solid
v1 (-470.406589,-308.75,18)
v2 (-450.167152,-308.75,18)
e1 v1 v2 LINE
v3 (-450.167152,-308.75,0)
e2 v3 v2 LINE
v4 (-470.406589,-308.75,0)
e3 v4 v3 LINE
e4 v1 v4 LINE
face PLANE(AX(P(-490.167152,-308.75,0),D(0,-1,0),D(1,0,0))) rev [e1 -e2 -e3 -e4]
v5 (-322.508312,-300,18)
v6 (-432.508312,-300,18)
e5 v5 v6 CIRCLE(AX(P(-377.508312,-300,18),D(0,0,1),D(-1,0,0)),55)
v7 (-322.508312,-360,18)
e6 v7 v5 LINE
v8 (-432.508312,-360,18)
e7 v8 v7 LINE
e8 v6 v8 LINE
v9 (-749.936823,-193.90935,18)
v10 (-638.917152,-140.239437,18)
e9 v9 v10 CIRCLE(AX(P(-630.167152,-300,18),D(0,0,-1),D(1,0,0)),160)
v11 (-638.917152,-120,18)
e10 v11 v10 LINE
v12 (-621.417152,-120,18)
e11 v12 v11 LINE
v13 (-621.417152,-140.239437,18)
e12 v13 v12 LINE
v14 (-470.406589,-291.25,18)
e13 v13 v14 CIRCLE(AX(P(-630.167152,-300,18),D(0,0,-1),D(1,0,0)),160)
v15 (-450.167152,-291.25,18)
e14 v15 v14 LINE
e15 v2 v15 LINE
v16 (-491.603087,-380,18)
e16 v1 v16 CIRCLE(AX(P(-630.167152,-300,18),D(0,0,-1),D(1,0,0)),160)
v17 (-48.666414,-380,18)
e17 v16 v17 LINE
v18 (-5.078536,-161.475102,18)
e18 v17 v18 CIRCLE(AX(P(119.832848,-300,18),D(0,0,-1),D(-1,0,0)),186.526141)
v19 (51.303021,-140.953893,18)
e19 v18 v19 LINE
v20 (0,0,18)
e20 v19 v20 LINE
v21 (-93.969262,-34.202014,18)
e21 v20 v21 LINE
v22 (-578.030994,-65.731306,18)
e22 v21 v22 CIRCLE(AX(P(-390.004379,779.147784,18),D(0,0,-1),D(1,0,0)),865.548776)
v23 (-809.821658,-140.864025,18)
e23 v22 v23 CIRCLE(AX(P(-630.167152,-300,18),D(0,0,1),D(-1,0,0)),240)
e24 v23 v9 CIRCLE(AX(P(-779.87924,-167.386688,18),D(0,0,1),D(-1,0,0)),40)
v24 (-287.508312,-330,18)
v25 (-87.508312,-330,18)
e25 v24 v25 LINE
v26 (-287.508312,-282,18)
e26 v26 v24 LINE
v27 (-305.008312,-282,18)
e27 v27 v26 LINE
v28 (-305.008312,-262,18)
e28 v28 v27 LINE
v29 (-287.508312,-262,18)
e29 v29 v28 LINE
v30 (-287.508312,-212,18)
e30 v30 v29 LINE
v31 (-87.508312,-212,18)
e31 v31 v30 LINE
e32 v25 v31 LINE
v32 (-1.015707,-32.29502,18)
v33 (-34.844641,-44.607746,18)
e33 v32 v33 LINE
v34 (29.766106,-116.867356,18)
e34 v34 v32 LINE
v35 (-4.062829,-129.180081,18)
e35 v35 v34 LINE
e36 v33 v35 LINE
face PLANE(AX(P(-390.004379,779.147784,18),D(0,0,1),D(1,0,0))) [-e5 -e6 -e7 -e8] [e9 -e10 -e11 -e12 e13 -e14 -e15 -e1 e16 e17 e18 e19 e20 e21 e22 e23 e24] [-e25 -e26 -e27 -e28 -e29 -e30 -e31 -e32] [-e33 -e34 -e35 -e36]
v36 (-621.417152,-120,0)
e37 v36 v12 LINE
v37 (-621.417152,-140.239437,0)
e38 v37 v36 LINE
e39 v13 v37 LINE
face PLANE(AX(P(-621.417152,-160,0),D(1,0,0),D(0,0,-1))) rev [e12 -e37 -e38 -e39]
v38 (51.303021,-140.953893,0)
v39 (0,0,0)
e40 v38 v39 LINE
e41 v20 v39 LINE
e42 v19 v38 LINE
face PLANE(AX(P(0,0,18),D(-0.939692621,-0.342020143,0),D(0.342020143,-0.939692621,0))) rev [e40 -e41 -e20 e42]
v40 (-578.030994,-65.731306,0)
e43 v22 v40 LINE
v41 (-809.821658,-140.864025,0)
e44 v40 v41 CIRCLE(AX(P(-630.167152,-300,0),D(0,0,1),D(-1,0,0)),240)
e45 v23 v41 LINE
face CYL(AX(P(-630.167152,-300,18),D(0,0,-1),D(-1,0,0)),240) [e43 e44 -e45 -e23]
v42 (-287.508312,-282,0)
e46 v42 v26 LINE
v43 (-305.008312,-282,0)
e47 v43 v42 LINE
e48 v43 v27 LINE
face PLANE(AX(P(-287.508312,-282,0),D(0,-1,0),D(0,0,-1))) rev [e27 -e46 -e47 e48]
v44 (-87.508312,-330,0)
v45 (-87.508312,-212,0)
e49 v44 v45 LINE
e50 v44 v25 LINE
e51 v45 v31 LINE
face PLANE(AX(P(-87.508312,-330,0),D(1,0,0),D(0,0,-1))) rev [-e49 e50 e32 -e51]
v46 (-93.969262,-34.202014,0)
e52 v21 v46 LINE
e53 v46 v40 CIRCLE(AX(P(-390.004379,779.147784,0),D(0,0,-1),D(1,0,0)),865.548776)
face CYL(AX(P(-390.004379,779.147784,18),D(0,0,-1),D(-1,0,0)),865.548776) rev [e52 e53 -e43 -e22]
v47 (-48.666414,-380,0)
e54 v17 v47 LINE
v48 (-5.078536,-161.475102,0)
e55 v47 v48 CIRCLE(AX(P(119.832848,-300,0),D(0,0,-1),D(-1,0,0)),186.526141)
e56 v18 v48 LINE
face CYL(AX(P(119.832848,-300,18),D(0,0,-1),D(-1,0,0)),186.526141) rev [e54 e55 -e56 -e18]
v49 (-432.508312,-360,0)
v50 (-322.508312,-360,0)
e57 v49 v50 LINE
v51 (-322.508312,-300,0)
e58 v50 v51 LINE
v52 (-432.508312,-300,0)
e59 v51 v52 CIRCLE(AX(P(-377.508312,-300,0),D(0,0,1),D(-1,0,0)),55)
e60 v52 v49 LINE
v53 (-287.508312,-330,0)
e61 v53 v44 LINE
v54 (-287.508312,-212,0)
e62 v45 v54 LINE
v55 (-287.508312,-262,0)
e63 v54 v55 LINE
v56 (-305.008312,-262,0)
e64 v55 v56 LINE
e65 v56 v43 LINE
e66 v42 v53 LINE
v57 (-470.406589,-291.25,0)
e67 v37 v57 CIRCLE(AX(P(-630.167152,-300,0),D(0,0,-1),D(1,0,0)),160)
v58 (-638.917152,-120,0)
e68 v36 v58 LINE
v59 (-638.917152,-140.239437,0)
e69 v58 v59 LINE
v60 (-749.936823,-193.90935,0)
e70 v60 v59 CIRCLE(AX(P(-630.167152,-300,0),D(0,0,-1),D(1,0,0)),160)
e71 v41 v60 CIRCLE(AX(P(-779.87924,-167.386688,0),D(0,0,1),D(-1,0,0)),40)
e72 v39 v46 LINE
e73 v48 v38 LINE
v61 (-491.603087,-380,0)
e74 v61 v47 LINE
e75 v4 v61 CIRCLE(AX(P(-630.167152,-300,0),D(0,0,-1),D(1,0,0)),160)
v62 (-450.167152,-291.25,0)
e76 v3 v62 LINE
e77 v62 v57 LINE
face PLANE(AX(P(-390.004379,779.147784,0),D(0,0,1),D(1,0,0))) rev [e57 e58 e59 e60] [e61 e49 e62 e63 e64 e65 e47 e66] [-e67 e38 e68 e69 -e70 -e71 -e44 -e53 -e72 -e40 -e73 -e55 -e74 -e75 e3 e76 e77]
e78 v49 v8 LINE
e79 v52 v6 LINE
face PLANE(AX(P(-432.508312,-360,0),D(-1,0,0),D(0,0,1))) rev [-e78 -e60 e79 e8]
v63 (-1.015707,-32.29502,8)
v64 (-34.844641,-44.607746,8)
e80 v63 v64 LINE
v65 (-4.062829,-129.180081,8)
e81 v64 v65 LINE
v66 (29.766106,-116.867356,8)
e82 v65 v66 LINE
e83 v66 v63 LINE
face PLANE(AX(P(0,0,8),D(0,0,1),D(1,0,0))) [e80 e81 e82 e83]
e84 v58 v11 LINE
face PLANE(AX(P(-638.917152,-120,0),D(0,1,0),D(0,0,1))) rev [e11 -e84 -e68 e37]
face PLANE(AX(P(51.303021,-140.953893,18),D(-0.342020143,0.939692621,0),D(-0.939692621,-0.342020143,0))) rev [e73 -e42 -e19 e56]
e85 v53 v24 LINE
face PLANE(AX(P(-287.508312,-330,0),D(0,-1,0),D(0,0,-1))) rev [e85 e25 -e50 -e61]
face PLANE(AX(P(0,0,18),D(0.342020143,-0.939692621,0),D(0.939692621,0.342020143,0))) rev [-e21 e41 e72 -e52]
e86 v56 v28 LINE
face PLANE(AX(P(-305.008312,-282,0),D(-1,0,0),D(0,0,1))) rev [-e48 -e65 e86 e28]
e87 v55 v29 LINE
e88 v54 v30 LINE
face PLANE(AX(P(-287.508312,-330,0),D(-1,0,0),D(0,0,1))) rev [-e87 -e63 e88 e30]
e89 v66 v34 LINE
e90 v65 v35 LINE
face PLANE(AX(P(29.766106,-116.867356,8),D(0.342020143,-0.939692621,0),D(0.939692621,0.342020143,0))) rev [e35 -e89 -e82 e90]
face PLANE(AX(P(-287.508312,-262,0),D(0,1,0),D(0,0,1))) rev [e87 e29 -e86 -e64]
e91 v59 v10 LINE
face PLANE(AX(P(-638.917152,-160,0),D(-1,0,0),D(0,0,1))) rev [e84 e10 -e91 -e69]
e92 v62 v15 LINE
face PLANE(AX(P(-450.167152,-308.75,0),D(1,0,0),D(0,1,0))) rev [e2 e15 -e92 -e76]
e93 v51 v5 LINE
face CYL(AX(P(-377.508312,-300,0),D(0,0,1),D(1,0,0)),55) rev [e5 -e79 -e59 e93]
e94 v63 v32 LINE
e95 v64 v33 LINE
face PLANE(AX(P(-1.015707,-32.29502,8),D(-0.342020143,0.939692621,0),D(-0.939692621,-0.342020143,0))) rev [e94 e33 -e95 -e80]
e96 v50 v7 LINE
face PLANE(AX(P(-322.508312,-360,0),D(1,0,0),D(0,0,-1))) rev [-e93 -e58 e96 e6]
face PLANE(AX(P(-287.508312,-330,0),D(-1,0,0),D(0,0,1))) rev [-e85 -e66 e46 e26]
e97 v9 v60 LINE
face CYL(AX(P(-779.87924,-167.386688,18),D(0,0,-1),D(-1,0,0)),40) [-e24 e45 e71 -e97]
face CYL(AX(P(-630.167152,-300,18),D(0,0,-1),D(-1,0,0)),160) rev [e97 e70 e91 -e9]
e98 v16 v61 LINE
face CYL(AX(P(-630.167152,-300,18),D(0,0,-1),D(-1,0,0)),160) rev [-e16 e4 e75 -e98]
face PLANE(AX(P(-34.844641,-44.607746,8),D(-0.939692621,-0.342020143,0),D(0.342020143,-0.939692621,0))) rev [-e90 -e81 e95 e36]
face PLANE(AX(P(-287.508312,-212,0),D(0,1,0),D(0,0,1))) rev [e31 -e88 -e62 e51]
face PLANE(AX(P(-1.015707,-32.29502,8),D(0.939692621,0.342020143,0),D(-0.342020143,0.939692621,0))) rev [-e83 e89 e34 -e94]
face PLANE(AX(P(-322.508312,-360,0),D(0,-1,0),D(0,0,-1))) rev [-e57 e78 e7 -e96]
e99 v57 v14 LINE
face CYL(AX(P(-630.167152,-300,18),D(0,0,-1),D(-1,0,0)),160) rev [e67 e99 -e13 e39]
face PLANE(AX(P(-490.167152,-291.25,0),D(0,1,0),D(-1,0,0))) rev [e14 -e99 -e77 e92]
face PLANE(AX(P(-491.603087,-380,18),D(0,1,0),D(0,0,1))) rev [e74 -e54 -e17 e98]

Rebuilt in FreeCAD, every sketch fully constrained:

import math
import FreeCAD as App
import Part
import Sketcher

V = App.Vector
Q = App.Units.Quantity


def add_polygon(sketch, points):
    """Adds a closed chain of lines whose ends are joined by coincident constraints."""
    first, n = sketch.GeometryCount, len(points)
    for a, b in zip(points, points[1:] + points[:1]):
        sketch.addGeometry(Part.LineSegment(App.Vector(*a, 0), App.Vector(*b, 0)), False)
    for i in range(n):
        sketch.addConstraint(Sketcher.Constraint("Coincident", first + i, 2, first + (i + 1) % n, 1))

doc = App.newDocument("Part")
body = doc.addObject("PartDesign::Body", "Body")

# Sketch on XY plane
sketch1 = body.newObject("Sketcher::SketchObject", "Sketch")
sketch1.AttachmentSupport = (doc.getObject("XY_Plane"), [""])
sketch1.MapMode = "FlatFace"
sketch1.addGeometry(Part.LineSegment(V(51.303021, -140.953893, 0), V(0, 0, 0)), False)
sketch1.addGeometry(Part.LineSegment(V(0, 0, 0), V(-93.969262, -34.202014, 0)), False)
sketch1.addGeometry(Part.ArcOfCircle(Part.Circle(V(-390.004379, 779.147784, 0), V(0, 0, 1), 865.548776), math.radians(-102.546624), math.radians(-70)), False)
sketch1.addGeometry(Part.ArcOfCircle(Part.Circle(V(-630.167152, -300, 0), V(0, 0, 1), 240), math.radians(77.453376), math.radians(138.465832)), False)
sketch1.addGeometry(Part.ArcOfCircle(Part.Circle(V(-779.87924, -167.386688, 0), V(0, 0, 1), 40), math.radians(138.465832), math.radians(318.465832)), False)
sketch1.addGeometry(Part.ArcOfCircle(Part.Circle(V(-630.167152, -300, 0), V(0, 0, 1), 160), math.radians(-30), math.radians(138.465832)), False)
sketch1.addGeometry(Part.LineSegment(V(-491.603087, -380, 0), V(-48.666414, -380, 0)), False)
sketch1.addGeometry(Part.ArcOfCircle(Part.Circle(V(119.832848, -300, 0), V(0, 0, 1), 186.526141), math.radians(132.041775), math.radians(205.397411)), False)
sketch1.addGeometry(Part.LineSegment(V(-5.078536, -161.475102, 0), V(51.303021, -140.953893, 0)), False)
sketch1.addConstraint(Sketcher.Constraint("Coincident", 0, 2, 1, 1))
sketch1.addConstraint(Sketcher.Constraint("Tangent", 1, 2, 2, 2))
sketch1.addConstraint(Sketcher.Constraint("Tangent", 2, 1, 3, 1))
sketch1.addConstraint(Sketcher.Constraint("Tangent", 3, 2, 4, 1))
sketch1.addConstraint(Sketcher.Constraint("Tangent", 4, 2, 5, 2))
sketch1.addConstraint(Sketcher.Constraint("Coincident", 5, 1, 6, 1))
sketch1.addConstraint(Sketcher.Constraint("Coincident", 6, 2, 7, 2))
sketch1.addConstraint(Sketcher.Constraint("Coincident", 7, 1, 8, 1))
sketch1.addConstraint(Sketcher.Constraint("Coincident", 8, 2, 0, 1))
sketch1.addConstraint(Sketcher.Constraint("Horizontal", 6))
sketch1.addConstraint(Sketcher.Constraint("Coincident", 0, 2, -1, 1))
sketch1.addConstraint(Sketcher.Constraint("Coincident", 5, 3, 3, 3))
sketch1.addConstraint(Sketcher.Constraint("Perpendicular", 0, 1))
sketch1.addConstraint(Sketcher.Constraint("Parallel", 1, 8))
sketch1.addConstraint(Sketcher.Constraint("Horizontal", 5, 3, 7, 3))
sketch1.addConstraint(Sketcher.Constraint("Radius", 3, Q("240 mm")))
sketch1.addConstraint(Sketcher.Constraint("Radius", 4, Q("40 mm")))
sketch1.addConstraint(Sketcher.Constraint("Angle", 0, Q("110 deg")))
sketch1.addConstraint(Sketcher.Constraint("Distance", 0, Q("150 mm")))
sketch1.addConstraint(Sketcher.Constraint("Distance", 1, Q("100 mm")))
sketch1.addConstraint(Sketcher.Constraint("Distance", 8, Q("60 mm")))
sketch1.addConstraint(Sketcher.Constraint("DistanceY", 3, 3, -1, 1, Q("300 mm")))
sketch1.addConstraint(Sketcher.Constraint("DistanceY", 5, 1, -1, 1, Q("380 mm")))
sketch1.addConstraint(Sketcher.Constraint("DistanceX", 3, 3, 7, 3, Q("750 mm")))
sketch1.addConstraint(Sketcher.Constraint("Radius", 7, Q("186.526141 mm")))
sketch1.addConstraint(Sketcher.Constraint("DistanceX", 4, 3, -1, 1, Q("779.87924 mm")))
pad1 = body.newObject("PartDesign::Pad", "Pad")
pad1.Profile = sketch1
pad1.Length = 18

# Sketch on XY plane
sketch2 = body.newObject("Sketcher::SketchObject", "Sketch001")
sketch2.AttachmentSupport = (doc.getObject("XY_Plane"), [""])
sketch2.MapMode = "FlatFace"
sketch2.AttachmentOffset = App.Placement(V(0, 0, 18), App.Rotation())
add_polygon(sketch2, [(-287.508312, -212), (-287.508312, -330), (-87.508312, -330), (-87.508312, -212)])  # lines 0-3
sketch2.addGeometry(Part.LineSegment(V(-432.508312, -360, 0), V(-322.508312, -360, 0)), False)  # 4
sketch2.addGeometry(Part.LineSegment(V(-322.508312, -360, 0), V(-322.508312, -300, 0)), False)  # 5
sketch2.addGeometry(Part.ArcOfCircle(Part.Circle(V(-377.508312, -300, 0), V(0, 0, 1), 55), math.radians(0), math.radians(180)), False)  # 6
sketch2.addGeometry(Part.LineSegment(V(-432.508312, -300, 0), V(-432.508312, -360, 0)), False)  # 7
sketch2.addConstraint(Sketcher.Constraint("Coincident", 4, 2, 5, 1))
sketch2.addConstraint(Sketcher.Constraint("Tangent", 5, 2, 6, 1))
sketch2.addConstraint(Sketcher.Constraint("Tangent", 6, 2, 7, 1))
sketch2.addConstraint(Sketcher.Constraint("Coincident", 7, 2, 4, 1))
sketch2.addConstraint(Sketcher.Constraint("Vertical", 0))
sketch2.addConstraint(Sketcher.Constraint("Horizontal", 1))
sketch2.addConstraint(Sketcher.Constraint("Vertical", 2))
sketch2.addConstraint(Sketcher.Constraint("Horizontal", 3))
sketch2.addConstraint(Sketcher.Constraint("Horizontal", 4))
sketch2.addConstraint(Sketcher.Constraint("Vertical", 5))
sketch2.addConstraint(Sketcher.Constraint("Vertical", 7))
sketch2.addConstraint(Sketcher.Constraint("Radius", 6, Q("55 mm")))
sketch2.addConstraint(Sketcher.Constraint("DistanceX", 1, 1, 1, 2, Q("200 mm")))
sketch2.addConstraint(Sketcher.Constraint("DistanceY", 0, 2, 0, 1, Q("118 mm")))
sketch2.addConstraint(Sketcher.Constraint("DistanceY", 5, 1, 5, 2, Q("60 mm")))
sketch2.addConstraint(Sketcher.Constraint("DistanceY", 6, 3, -1, 1, Q("300 mm")))
sketch2.addConstraint(Sketcher.Constraint("DistanceY", 0, 2, -1, 1, Q("330 mm")))
sketch2.addConstraint(Sketcher.Constraint("DistanceX", 6, 3, 0, 2, Q("90 mm")))
sketch2.addConstraint(Sketcher.Constraint("DistanceX", 6, 3, -1, 1, Q("377.508312 mm")))
pocket1 = body.newObject("PartDesign::Pocket", "Pocket")
pocket1.Profile = sketch2
pocket1.Type = "ThroughAll"

# Sketch on XY plane
sketch3 = body.newObject("Sketcher::SketchObject", "Sketch002")
sketch3.AttachmentSupport = (doc.getObject("XY_Plane"), [""])
sketch3.MapMode = "FlatFace"
sketch3.AttachmentOffset = App.Placement(V(0, 0, 18), App.Rotation())
add_polygon(sketch3, [(29.766106, -116.867356), (-1.015707, -32.29502), (-34.844641, -44.607746), (-4.062829, -129.180081)])  # lines 0-3
sketch3.addConstraint(Sketcher.Constraint("Perpendicular", 0, 1))
sketch3.addConstraint(Sketcher.Constraint("Perpendicular", 1, 2))
sketch3.addConstraint(Sketcher.Constraint("Perpendicular", 2, 3))
sketch3.addConstraint(Sketcher.Constraint("Angle", 0, Q("110 deg")))
sketch3.addConstraint(Sketcher.Constraint("Distance", 0, Q("90 mm")))
sketch3.addConstraint(Sketcher.Constraint("Distance", 1, Q("36 mm")))
sketch3.addConstraint(Sketcher.Constraint("DistanceY", 0, 2, -1, 1, Q("32.29502 mm")))
sketch3.addConstraint(Sketcher.Constraint("DistanceX", 1, 2, -1, 1, Q("34.844641 mm")))
pocket2 = body.newObject("PartDesign::Pocket", "Pocket001")
pocket2.Profile = sketch3
pocket2.Length = 10

# Sketch on XY plane
sketch4 = body.newObject("Sketcher::SketchObject", "Sketch003")
sketch4.AttachmentSupport = (doc.getObject("XY_Plane"), [""])
sketch4.MapMode = "FlatFace"
sketch4.AttachmentOffset = App.Placement(V(0, 0, 18), App.Rotation())
add_polygon(sketch4, [(-638.917152, -120), (-638.917152, -160), (-621.417152, -160), (-621.417152, -120)])  # lines 0-3
add_polygon(sketch4, [(-490.167152, -291.25), (-490.167152, -308.75), (-450.167152, -308.75), (-450.167152, -291.25)])  # lines 4-7
add_polygon(sketch4, [(-305.008312, -262), (-305.008312, -282), (-287.508312, -282), (-287.508312, -262)])  # lines 8-11
sketch4.addConstraint(Sketcher.Constraint("Vertical", 0))
sketch4.addConstraint(Sketcher.Constraint("Horizontal", 1))
sketch4.addConstraint(Sketcher.Constraint("Vertical", 2))
sketch4.addConstraint(Sketcher.Constraint("Horizontal", 3))
sketch4.addConstraint(Sketcher.Constraint("Vertical", 4))
sketch4.addConstraint(Sketcher.Constraint("Horizontal", 5))
sketch4.addConstraint(Sketcher.Constraint("Vertical", 6))
sketch4.addConstraint(Sketcher.Constraint("Horizontal", 7))
sketch4.addConstraint(Sketcher.Constraint("Vertical", 8))
sketch4.addConstraint(Sketcher.Constraint("Horizontal", 9))
sketch4.addConstraint(Sketcher.Constraint("Vertical", 10))
sketch4.addConstraint(Sketcher.Constraint("Horizontal", 11))
sketch4.addConstraint(Sketcher.Constraint("Equal", 3, 9))
sketch4.addConstraint(Sketcher.Constraint("Equal", 7, 0))
sketch4.addConstraint(Sketcher.Constraint("Equal", 11, 4))
sketch4.addConstraint(Sketcher.Constraint("DistanceX", 5, 1, 5, 2, Q("40 mm")))
sketch4.addConstraint(Sketcher.Constraint("DistanceY", 8, 2, 8, 1, Q("20 mm")))
sketch4.addConstraint(Sketcher.Constraint("DistanceX", 1, 1, 1, 2, Q("17.5 mm")))
sketch4.addConstraint(Sketcher.Constraint("DistanceY", 0, 2, -1, 1, Q("160 mm")))
sketch4.addConstraint(Sketcher.Constraint("DistanceY", 8, 2, -1, 1, Q("282 mm")))
sketch4.addConstraint(Sketcher.Constraint("DistanceY", 4, 2, -1, 1, Q("308.75 mm")))
sketch4.addConstraint(Sketcher.Constraint("DistanceX", 1, 2, 4, 2, Q("131.25 mm")))
sketch4.addConstraint(Sketcher.Constraint("DistanceX", 0, 2, -1, 1, Q("638.917152 mm")))
sketch4.addConstraint(Sketcher.Constraint("DistanceX", 6, 2, 8, 2, Q("145.15884 mm")))
pocket3 = body.newObject("PartDesign::Pocket", "Pocket002")
pocket3.Profile = sketch4
pocket3.Type = "ThroughAll"

doc.recompute()
